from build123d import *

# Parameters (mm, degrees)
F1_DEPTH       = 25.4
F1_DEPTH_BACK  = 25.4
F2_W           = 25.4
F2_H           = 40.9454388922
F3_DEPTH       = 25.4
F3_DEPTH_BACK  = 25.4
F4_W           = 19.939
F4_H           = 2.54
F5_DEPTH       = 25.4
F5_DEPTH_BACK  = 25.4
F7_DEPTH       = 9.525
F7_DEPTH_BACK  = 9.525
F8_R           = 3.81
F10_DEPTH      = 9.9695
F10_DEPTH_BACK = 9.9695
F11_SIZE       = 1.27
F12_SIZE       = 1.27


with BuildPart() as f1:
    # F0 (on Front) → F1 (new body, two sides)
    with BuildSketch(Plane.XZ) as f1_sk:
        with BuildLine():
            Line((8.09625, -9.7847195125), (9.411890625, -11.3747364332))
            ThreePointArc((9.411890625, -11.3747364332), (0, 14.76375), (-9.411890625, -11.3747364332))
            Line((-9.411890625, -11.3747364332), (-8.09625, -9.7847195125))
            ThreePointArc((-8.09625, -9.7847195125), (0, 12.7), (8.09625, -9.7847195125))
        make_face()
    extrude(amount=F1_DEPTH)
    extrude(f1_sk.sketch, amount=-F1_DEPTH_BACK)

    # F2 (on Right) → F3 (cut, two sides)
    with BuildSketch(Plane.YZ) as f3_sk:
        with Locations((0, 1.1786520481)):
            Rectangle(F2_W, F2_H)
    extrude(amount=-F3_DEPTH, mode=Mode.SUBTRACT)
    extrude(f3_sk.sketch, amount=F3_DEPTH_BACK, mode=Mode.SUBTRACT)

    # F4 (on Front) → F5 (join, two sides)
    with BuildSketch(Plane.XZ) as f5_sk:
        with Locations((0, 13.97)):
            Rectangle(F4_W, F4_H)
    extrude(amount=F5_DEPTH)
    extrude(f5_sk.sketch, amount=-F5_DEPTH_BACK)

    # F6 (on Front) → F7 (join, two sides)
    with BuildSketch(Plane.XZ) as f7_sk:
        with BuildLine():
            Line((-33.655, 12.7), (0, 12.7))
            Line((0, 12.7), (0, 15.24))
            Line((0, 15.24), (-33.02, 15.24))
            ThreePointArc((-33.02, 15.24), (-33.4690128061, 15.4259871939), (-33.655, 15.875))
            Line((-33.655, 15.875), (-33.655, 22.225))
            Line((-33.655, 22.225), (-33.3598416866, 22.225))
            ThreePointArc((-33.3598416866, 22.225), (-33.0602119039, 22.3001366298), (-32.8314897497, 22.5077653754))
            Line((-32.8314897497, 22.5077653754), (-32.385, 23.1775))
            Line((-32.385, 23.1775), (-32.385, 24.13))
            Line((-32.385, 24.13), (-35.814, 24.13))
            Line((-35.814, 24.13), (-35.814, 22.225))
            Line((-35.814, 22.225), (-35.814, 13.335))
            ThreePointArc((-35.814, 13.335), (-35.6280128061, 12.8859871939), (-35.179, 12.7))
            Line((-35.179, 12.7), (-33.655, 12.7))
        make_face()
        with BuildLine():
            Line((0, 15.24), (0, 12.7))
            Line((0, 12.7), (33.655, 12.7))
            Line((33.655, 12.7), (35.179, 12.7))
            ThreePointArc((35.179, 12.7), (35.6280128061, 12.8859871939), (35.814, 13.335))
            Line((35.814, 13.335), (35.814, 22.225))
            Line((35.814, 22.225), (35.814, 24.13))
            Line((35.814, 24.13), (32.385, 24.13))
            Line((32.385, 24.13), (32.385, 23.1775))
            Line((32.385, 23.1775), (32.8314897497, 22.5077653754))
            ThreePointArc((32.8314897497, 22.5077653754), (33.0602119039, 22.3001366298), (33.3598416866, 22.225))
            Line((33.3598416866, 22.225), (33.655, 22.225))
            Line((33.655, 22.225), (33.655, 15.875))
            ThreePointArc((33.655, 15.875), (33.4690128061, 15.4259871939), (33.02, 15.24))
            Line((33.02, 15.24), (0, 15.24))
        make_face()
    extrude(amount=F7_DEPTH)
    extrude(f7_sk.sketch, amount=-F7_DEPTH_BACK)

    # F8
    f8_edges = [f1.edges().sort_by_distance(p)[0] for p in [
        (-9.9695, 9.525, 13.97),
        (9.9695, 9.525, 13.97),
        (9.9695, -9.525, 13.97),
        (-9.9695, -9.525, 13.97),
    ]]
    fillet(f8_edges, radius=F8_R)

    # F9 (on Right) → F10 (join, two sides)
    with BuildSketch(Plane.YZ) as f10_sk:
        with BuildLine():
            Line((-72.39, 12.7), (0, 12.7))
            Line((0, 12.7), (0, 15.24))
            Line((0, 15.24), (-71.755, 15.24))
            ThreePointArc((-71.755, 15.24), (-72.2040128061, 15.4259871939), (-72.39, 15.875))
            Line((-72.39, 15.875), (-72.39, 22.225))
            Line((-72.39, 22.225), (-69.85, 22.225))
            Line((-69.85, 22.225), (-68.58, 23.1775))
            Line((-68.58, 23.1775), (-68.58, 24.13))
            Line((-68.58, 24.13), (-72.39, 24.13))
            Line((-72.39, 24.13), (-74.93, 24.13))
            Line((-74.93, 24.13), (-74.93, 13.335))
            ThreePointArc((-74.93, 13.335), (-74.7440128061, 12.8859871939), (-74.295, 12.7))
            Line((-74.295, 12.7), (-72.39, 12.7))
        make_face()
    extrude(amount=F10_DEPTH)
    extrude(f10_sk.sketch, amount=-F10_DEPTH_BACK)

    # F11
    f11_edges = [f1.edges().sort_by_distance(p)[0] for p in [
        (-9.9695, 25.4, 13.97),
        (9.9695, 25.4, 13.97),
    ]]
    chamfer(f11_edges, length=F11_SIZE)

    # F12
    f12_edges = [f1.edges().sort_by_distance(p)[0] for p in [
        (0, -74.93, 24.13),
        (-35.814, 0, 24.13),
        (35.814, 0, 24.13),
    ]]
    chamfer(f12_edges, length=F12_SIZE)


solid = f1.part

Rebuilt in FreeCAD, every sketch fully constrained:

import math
import FreeCAD as App
import Part
import Sketcher
from FreeCAD import Vector
Q = App.Units.Quantity


def edges_at(feature, points):
    """Names of the edges that pass closest to the given points."""
    edges = feature.Shape.Edges
    near = lambda p: min(range(len(edges)), key=lambda i: edges[i].distToShape(Part.Vertex(*p))[0])
    return sorted({f"Edge{near(p) + 1}" for p in points})

doc = App.newDocument("Part")
params = doc.addObject("Spreadsheet::Sheet", "Params")
for row, (alias, value) in enumerate([
    ("sketch1_radius", "0.5 in"),
    ("pad1_length", "1 in"),
    ("pad1_length2", "1 in"),
    ("sketch2_width", "1 in"),
    ("sketch3_height", "0.1 in"),
    ("sketch3_width", "0.785 in"),
    ("pad2_length", "1 in"),
    ("pad2_length2", "1 in"),
    ("sketch4_width", "2.6 in"),
    ("sketch4_radius", "0.025 in"),
    ("sketch4_width2", "2.77 in"),
    ("sketch4_height", "0.25 in"),
    ("sketch4_width3", "0.135 in"),
    ("pad3_length", "0.375 in"),
    ("pad3_length2", "0.375 in"),
    ("fillet_radius", "0.15 in"),
    ("sketch5_width", "0.1 in"),
    ("sketch5_radius", "0.025 in"),
    ("sketch5_width2", "0.25 in"),
    ("sketch5_height", "0.425 in"),
    ("sketch5_length", "0.0625 in"),
    ("pad4_length", "0.3925 in"),
    ("pad4_length2", "0.3925 in"),
    ("chamfer_size", "0.05 in"),
    ("chamfer2_size", "0.05 in"),
], start=1):
    params.set(f"A{row}", alias)
    params.set(f"B{row}", "=" + value)
    params.setAlias(f"B{row}", alias)

body = doc.addObject("PartDesign::Body", "Body")
body.AllowCompound = True

sketch1 = body.newObject("Sketcher::SketchObject", "Sketch")
sketch1.AttachmentSupport = (doc.getObject("XZ_Plane"), [""])
sketch1.MapMode = "FlatFace"
sketch1.addGeometry([
    Part.LineSegment(Vector(8.09625, -9.78472, 0), Vector(9.411891, -11.374736, 0)),
    Part.ArcOfCircle(Part.Circle(Vector(0, 0, 0), Vector(0, 0, 1), 14.76375), math.radians(-50.394348), math.radians(230.394348)),
    Part.LineSegment(Vector(-9.411891, -11.374736, 0), Vector(-8.09625, -9.78472, 0)),
    Part.ArcOfCircle(Part.Circle(Vector(0, 0, 0), Vector(0, 0, 1), 12.7), math.radians(-50.394348), math.radians(230.394348)),
], False)
sketch1.addConstraint([
    Sketcher.Constraint("Coincident", 0, 2, 1, 1),
    Sketcher.Constraint("Coincident", 1, 2, 2, 1),
    Sketcher.Constraint("Coincident", 2, 2, 3, 2),
    Sketcher.Constraint("Coincident", 3, 1, 0, 1),
    Sketcher.Constraint("Coincident", 1, 3, -1, 1),
    Sketcher.Constraint("Coincident", 3, 3, -1, 1),
    Sketcher.Constraint("Horizontal", 0, 2, 1, 2),
    Sketcher.Constraint("Horizontal", 2, 2, 3, 1),
    Sketcher.Constraint("Radius", 3, Q("0.5 in")),
    Sketcher.Constraint("Radius", 1, 14.76375),
    Sketcher.Constraint("DistanceX", 2, 2, 3, 1, Q("0.6375 in")),
    Sketcher.Constraint("DistanceX", -1, 1, 0, 2, 9.411891),
])
sketch1.setExpression("Constraints[8]", "Params.sketch1_radius")
pad1 = body.newObject("PartDesign::Pad", "Pad")
pad1.Profile = sketch1
pad1.Type = "TwoLengths"
pad1.setExpression("Length", "Params.pad1_length")
pad1.setExpression("Length2", "Params.pad1_length2")

sketch2 = body.newObject("Sketcher::SketchObject", "Sketch001")
sketch2.AttachmentSupport = (doc.getObject("YZ_Plane"), [""])
sketch2.MapMode = "FlatFace"
sketch2.addGeometry([
    Part.LineSegment(Vector(-12.7, 21.651371, 0), Vector(-12.7, -19.294067, 0)),
    Part.LineSegment(Vector(-12.7, -19.294067, 0), Vector(12.7, -19.294067, 0)),
    Part.LineSegment(Vector(12.7, -19.294067, 0), Vector(12.7, 21.651371, 0)),
    Part.LineSegment(Vector(12.7, 21.651371, 0), Vector(-12.7, 21.651371, 0)),
], False)
sketch2.addConstraint([
    Sketcher.Constraint("Coincident", 0, 2, 1, 1),
    Sketcher.Constraint("Coincident", 1, 2, 2, 1),
    Sketcher.Constraint("Coincident", 2, 2, 3, 1),
    Sketcher.Constraint("Coincident", 3, 2, 0, 1),
    Sketcher.Constraint("Vertical", 0),
    Sketcher.Constraint("Horizontal", 1),
    Sketcher.Constraint("Vertical", 2),
    Sketcher.Constraint("Horizontal", 3),
    Sketcher.Constraint("DistanceX", 1, 1, 1, 2, Q("1 in")),
    Sketcher.Constraint("DistanceX", 0, 2, -1, 1, Q("0.5 in")),
    Sketcher.Constraint("DistanceY", 0, 2, 0, 1, 40.945439),
    Sketcher.Constraint("DistanceY", -1, 1, 2, 2, 21.651371),
])
sketch2.setExpression("Constraints[8]", "Params.sketch2_width")
pocket1 = body.newObject("PartDesign::Pocket", "Pocket")
pocket1.Profile = sketch2
pocket1.Type = "ThroughAll"
pocket1.Midplane = True

sketch3 = body.newObject("Sketcher::SketchObject", "Sketch002")
sketch3.AttachmentSupport = (doc.getObject("XZ_Plane"), [""])
sketch3.MapMode = "FlatFace"
sketch3.addGeometry([
    Part.LineSegment(Vector(-9.9695, 15.24, 0), Vector(-9.9695, 12.7, 0)),
    Part.LineSegment(Vector(-9.9695, 12.7, 0), Vector(9.9695, 12.7, 0)),
    Part.LineSegment(Vector(9.9695, 12.7, 0), Vector(9.9695, 15.24, 0)),
    Part.LineSegment(Vector(9.9695, 15.24, 0), Vector(-9.9695, 15.24, 0)),
], False)
sketch3.addConstraint([
    Sketcher.Constraint("Coincident", 0, 2, 1, 1),
    Sketcher.Constraint("Coincident", 1, 2, 2, 1),
    Sketcher.Constraint("Coincident", 2, 2, 3, 1),
    Sketcher.Constraint("Coincident", 3, 2, 0, 1),
    Sketcher.Constraint("Vertical", 0),
    Sketcher.Constraint("Horizontal", 1),
    Sketcher.Constraint("Vertical", 2),
    Sketcher.Constraint("Horizontal", 3),
    Sketcher.Constraint("DistanceY", 0, 2, 0, 1, Q("0.1 in")),
    Sketcher.Constraint("DistanceY", -1, 1, 0, 2, Q("0.5 in")),
    Sketcher.Constraint("DistanceX", 1, 1, 1, 2, Q("0.785 in")),
    Sketcher.Constraint("DistanceX", 0, 2, -1, 1, Q("0.3925 in")),
])
sketch3.setExpression("Constraints[8]", "Params.sketch3_height")
sketch3.setExpression("Constraints[10]", "Params.sketch3_width")
pad2 = body.newObject("PartDesign::Pad", "Pad001")
pad2.Profile = sketch3
pad2.Type = "TwoLengths"
pad2.setExpression("Length", "Params.pad2_length")
pad2.setExpression("Length2", "Params.pad2_length2")

sketch4 = body.newObject("Sketcher::SketchObject", "Sketch003")
sketch4.AttachmentSupport = (doc.getObject("XZ_Plane"), [""])
sketch4.MapMode = "FlatFace"
sketch4.addGeometry([
    Part.ArcOfCircle(Part.Circle(Vector(-33.02, 15.875, 0), Vector(0, 0, 1), 0.635), math.radians(180), math.radians(270)),
    Part.LineSegment(Vector(-33.655, 15.875, 0), Vector(-33.655, 22.225, 0)),
    Part.LineSegment(Vector(-33.655, 22.225, 0), Vector(-33.359842, 22.225, 0)),
    Part.ArcOfCircle(Part.Circle(Vector(-33.359842, 22.86, 0), Vector(0, 0, 1), 0.635), math.radians(-90), math.radians(-33.690068)),
    Part.LineSegment(Vector(-32.83149, 22.507765, 0), Vector(-32.385, 23.1775, 0)),
    Part.LineSegment(Vector(-32.385, 23.1775, 0), Vector(-32.385, 24.13, 0)),
    Part.LineSegment(Vector(-32.385, 24.13, 0), Vector(-35.814, 24.13, 0)),
    Part.LineSegment(Vector(-35.814, 24.13, 0), Vector(-35.814, 13.335, 0)),
    Part.ArcOfCircle(Part.Circle(Vector(-35.179, 13.335, 0), Vector(0, 0, 1), 0.635), math.radians(180), math.radians(270)),
    Part.LineSegment(Vector(-35.179, 12.7, 0), Vector(35.179, 12.7, 0)),
    Part.ArcOfCircle(Part.Circle(Vector(35.179, 13.335, 0), Vector(0, 0, 1), 0.635), math.radians(-90), math.radians(0)),
    Part.LineSegment(Vector(35.814, 13.335, 0), Vector(35.814, 24.13, 0)),
    Part.LineSegment(Vector(35.814, 24.13, 0), Vector(32.385, 24.13, 0)),
    Part.LineSegment(Vector(32.385, 24.13, 0), Vector(32.385, 23.1775, 0)),
    Part.LineSegment(Vector(32.385, 23.1775, 0), Vector(32.83149, 22.507765, 0)),
    Part.ArcOfCircle(Part.Circle(Vector(33.359842, 22.86, 0), Vector(0, 0, 1), 0.635), math.radians(-146.309932), math.radians(-90)),
    Part.LineSegment(Vector(33.359842, 22.225, 0), Vector(33.655, 22.225, 0)),
    Part.LineSegment(Vector(33.655, 22.225, 0), Vector(33.655, 15.875, 0)),
    Part.ArcOfCircle(Part.Circle(Vector(33.02, 15.875, 0), Vector(0, 0, 1), 0.635), math.radians(-90), math.radians(0)),
    Part.LineSegment(Vector(33.02, 15.24, 0), Vector(-33.02, 15.24, 0)),
], False)
sketch4.addConstraint([
    Sketcher.Constraint("Tangent", 0, 1, 1, 1),
    Sketcher.Constraint("Coincident", 1, 2, 2, 1),
    Sketcher.Constraint("Tangent", 2, 2, 3, 1),
    Sketcher.Constraint("Tangent", 3, 2, 4, 1),
    Sketcher.Constraint("Coincident", 4, 2, 5, 1),
    Sketcher.Constraint("Coincident", 5, 2, 6, 1),
    Sketcher.Constraint("Coincident", 6, 2, 7, 1),
    Sketcher.Constraint("Tangent", 7, 2, 8, 1),
    Sketcher.Constraint("Tangent", 8, 2, 9, 1),
    Sketcher.Constraint("Tangent", 9, 2, 10, 1),
    Sketcher.Constraint("Tangent", 10, 2, 11, 1),
    Sketcher.Constraint("Coincident", 11, 2, 12, 1),
    Sketcher.Constraint("Coincident", 12, 2, 13, 1),
    Sketcher.Constraint("Coincident", 13, 2, 14, 1),
    Sketcher.Constraint("Tangent", 14, 2, 15, 1),
    Sketcher.Constraint("Tangent", 15, 2, 16, 1),
    Sketcher.Constraint("Coincident", 16, 2, 17, 1),
    Sketcher.Constraint("Tangent", 17, 2, 18, 2),
    Sketcher.Constraint("Tangent", 18, 1, 19, 1),
    Sketcher.Constraint("Tangent", 19, 2, 0, 2),
    Sketcher.Constraint("Vertical", 1),
    Sketcher.Constraint("Horizontal", 2),
    Sketcher.Constraint("Vertical", 5),
    Sketcher.Constraint("Horizontal", 6),
    Sketcher.Constraint("Vertical", 7),
    Sketcher.Constraint("Horizontal", 9),
    Sketcher.Constraint("Vertical", 11),
    Sketcher.Constraint("Horizontal", 12),
    Sketcher.Constraint("Vertical", 13),
    Sketcher.Constraint("Horizontal", 16),
    Sketcher.Constraint("Vertical", 17),
    Sketcher.Constraint("Horizontal", 19),
    Sketcher.Constraint("Equal", 0, 3),
    Sketcher.Constraint("Equal", 3, 8),
    Sketcher.Constraint("Equal", 8, 10),
    Sketcher.Constraint("Equal", 10, 15),
    Sketcher.Constraint("Equal", 15, 18),
    Sketcher.Constraint("Symmetric", 3, 3, 15, 3, -2),
    Sketcher.Constraint("Symmetric", 6, 2, 11, 2, -2),
    Sketcher.Constraint("Symmetric", 4, 2, 13, 2, -2),
    Sketcher.Constraint("Equal", 2, 16),
    Sketcher.Constraint("DistanceX", 19, 2, 19, 1, Q("2.6 in")),
    Sketcher.Constraint("Radius", 0, Q("0.025 in")),
    Sketcher.Constraint("DistanceX", 9, 1, 9, 2, Q("2.77 in")),
    Sketcher.Constraint("DistanceY", 1, 1, 1, 2, Q("0.25 in")),
    Sketcher.Constraint("DistanceY", -1, 1, 3, 3, Q("0.9 in")),
    Sketcher.Constraint("DistanceY", -1, 1, 8, 2, Q("0.5 in")),
    Sketcher.Constraint("DistanceX", 6, 2, 6, 1, Q("0.135 in")),
    Sketcher.Constraint("DistanceY", 7, 2, 7, 1, Q("0.425 in")),
    Sketcher.Constraint("DistanceY", 5, 1, 5, 2, Q("0.0375 in")),
    Sketcher.Constraint("DistanceX", 2, 1, 2, 2, 0.295158),
])
sketch4.setExpression("Constraints[41]", "Params.sketch4_width")
sketch4.setExpression("Constraints[42]", "Params.sketch4_radius")
sketch4.setExpression("Constraints[43]", "Params.sketch4_width2")
sketch4.setExpression("Constraints[44]", "Params.sketch4_height")
sketch4.setExpression("Constraints[47]", "Params.sketch4_width3")
pad3 = body.newObject("PartDesign::Pad", "Pad002")
pad3.Profile = sketch4
pad3.Type = "TwoLengths"
pad3.setExpression("Length", "Params.pad3_length")
pad3.setExpression("Length2", "Params.pad3_length2")
doc.recompute()

fillet = body.newObject("PartDesign::Fillet", "Fillet")
fillet.Base = (pad3, edges_at(pad3, [
    (-9.97, 9.525, 13.97),
    (9.97, 9.525, 13.97),
    (9.97, -9.525, 13.97),
    (-9.97, -9.525, 13.97),
]))
fillet.setExpression("Radius", "Params.fillet_radius")

sketch5 = body.newObject("Sketcher::SketchObject", "Sketch004")
sketch5.AttachmentSupport = (doc.getObject("YZ_Plane"), [""])
sketch5.MapMode = "FlatFace"
sketch5.addGeometry([
    Part.LineSegment(Vector(0, 12.7, 0), Vector(0, 15.24, 0)),
    Part.LineSegment(Vector(0, 15.24, 0), Vector(-71.755, 15.24, 0)),
    Part.ArcOfCircle(Part.Circle(Vector(-71.755, 15.875, 0), Vector(0, 0, 1), 0.635), math.radians(180), math.radians(270)),
    Part.LineSegment(Vector(-72.39, 15.875, 0), Vector(-72.39, 22.225, 0)),
    Part.LineSegment(Vector(-72.39, 22.225, 0), Vector(-69.85, 22.225, 0)),
    Part.LineSegment(Vector(-69.85, 22.225, 0), Vector(-68.58, 23.1775, 0)),
    Part.LineSegment(Vector(-68.58, 23.1775, 0), Vector(-68.58, 24.13, 0)),
    Part.LineSegment(Vector(-68.58, 24.13, 0), Vector(-74.93, 24.13, 0)),
    Part.LineSegment(Vector(-74.93, 24.13, 0), Vector(-74.93, 13.335, 0)),
    Part.ArcOfCircle(Part.Circle(Vector(-74.295, 13.335, 0), Vector(0, 0, 1), 0.635), math.radians(180), math.radians(270)),
    Part.LineSegment(Vector(-74.295, 12.7, 0), Vector(0, 12.7, 0)),
], False)
sketch5.addConstraint([
    Sketcher.Constraint("Coincident", 0, 2, 1, 1),
    Sketcher.Constraint("Tangent", 1, 2, 2, 2),
    Sketcher.Constraint("Tangent", 2, 1, 3, 1),
    Sketcher.Constraint("Coincident", 3, 2, 4, 1),
    Sketcher.Constraint("Coincident", 4, 2, 5, 1),
    Sketcher.Constraint("Coincident", 5, 2, 6, 1),
    Sketcher.Constraint("Coincident", 6, 2, 7, 1),
    Sketcher.Constraint("Coincident", 7, 2, 8, 1),
    Sketcher.Constraint("Tangent", 8, 2, 9, 1),
    Sketcher.Constraint("Tangent", 9, 2, 10, 1),
    Sketcher.Constraint("Coincident", 10, 2, 0, 1),
    Sketcher.Constraint("Vertical", 0),
    Sketcher.Constraint("Horizontal", 1),
    Sketcher.Constraint("Vertical", 3),
    Sketcher.Constraint("Horizontal", 4),
    Sketcher.Constraint("Vertical", 6),
    Sketcher.Constraint("Horizontal", 7),
    Sketcher.Constraint("Vertical", 8),
    Sketcher.Constraint("Horizontal", 10),
    Sketcher.Constraint("Equal", 2, 9),
    Sketcher.Constraint("PointOnObject", 0, 2, -2),
    Sketcher.Constraint("Equal", 4, 0),
    Sketcher.Constraint("Equal", 7, 3),
    Sketcher.Constraint("DistanceX", 4, 1, 4, 2, Q("0.1 in")),
    Sketcher.Constraint("Radius", 2, Q("0.025 in")),
    Sketcher.Constraint("DistanceX", 7, 2, 7, 1, Q("0.25 in")),
    Sketcher.Constraint("DistanceY", -1, 1, 0, 2, Q("0.6 in")),
    Sketcher.Constraint("DistanceX", 5, 2, -1, 1, Q("2.7 in")),
    Sketcher.Constraint("DistanceX", 9, 3, 2, 3, Q("0.1 in")),
    Sketcher.Constraint("DistanceY", 8, 2, 8, 1, Q("0.425 in")),
    Sketcher.Constraint("Distance", 5, Q("0.0625 in")),
])
sketch5.setExpression("Constraints[23]", "Params.sketch5_width")
sketch5.setExpression("Constraints[24]", "Params.sketch5_radius")
sketch5.setExpression("Constraints[25]", "Params.sketch5_width2")
sketch5.setExpression("Constraints[29]", "Params.sketch5_height")
sketch5.setExpression("Constraints[30]", "Params.sketch5_length")
pad4 = body.newObject("PartDesign::Pad", "Pad003")
pad4.Profile = sketch5
pad4.Type = "TwoLengths"
pad4.setExpression("Length", "Params.pad4_length")
pad4.setExpression("Length2", "Params.pad4_length2")
doc.recompute()

chamfer = body.newObject("PartDesign::Chamfer", "Chamfer")
chamfer.Base = (pad4, edges_at(pad4, [(-9.97, 25.4, 13.97), (9.97, 25.4, 13.97)]))
chamfer.setExpression("Size", "Params.chamfer_size")
doc.recompute()

chamfer2 = body.newObject("PartDesign::Chamfer", "Chamfer001")
chamfer2.Base = (chamfer, edges_at(chamfer, [(0, -74.93, 24.13), (-35.814, 0, 24.13), (35.814, 0, 24.13)]))
chamfer2.setExpression("Size", "Params.chamfer2_size")

doc.recompute()
